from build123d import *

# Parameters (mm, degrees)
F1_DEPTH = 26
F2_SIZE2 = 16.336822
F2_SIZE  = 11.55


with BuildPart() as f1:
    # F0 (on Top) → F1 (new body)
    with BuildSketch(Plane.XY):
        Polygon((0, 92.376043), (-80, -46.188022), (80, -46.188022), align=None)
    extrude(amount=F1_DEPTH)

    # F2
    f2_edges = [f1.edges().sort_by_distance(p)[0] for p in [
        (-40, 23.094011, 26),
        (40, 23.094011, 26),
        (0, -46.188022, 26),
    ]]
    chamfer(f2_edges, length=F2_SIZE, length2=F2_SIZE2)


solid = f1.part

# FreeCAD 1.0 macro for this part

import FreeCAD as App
import Part
import Sketcher
from FreeCAD import Vector
Q = App.Units.Quantity


def edges_at(feature, points):
    """Names of the edges that pass closest to the given points."""
    edges = feature.Shape.Edges
    near = lambda p: min(range(len(edges)), key=lambda i: edges[i].distToShape(Part.Vertex(*p))[0])
    return sorted({f"Edge{near(p) + 1}" for p in points})

doc = App.newDocument("Part")
body = doc.addObject("PartDesign::Body", "Body")

# Sketch on XY plane
sketch1 = body.newObject("Sketcher::SketchObject", "Sketch")
sketch1.AttachmentSupport = (doc.getObject("XY_Plane"), [""])
sketch1.MapMode = "FlatFace"
sketch1.addGeometry(Part.LineSegment(Vector(0, 92, 0), Vector(-80, -46, 0)), False)
sketch1.addGeometry(Part.LineSegment(Vector(-80, -46, 0), Vector(80, -46, 0)), False)
sketch1.addGeometry(Part.LineSegment(Vector(80, -46, 0), Vector(0, 92, 0)), False)
sketch1.addConstraint(Sketcher.Constraint("Coincident", 0, 2, 1, 1))
sketch1.addConstraint(Sketcher.Constraint("Coincident", 1, 2, 2, 1))
sketch1.addConstraint(Sketcher.Constraint("Coincident", 2, 2, 0, 1))
sketch1.addConstraint(Sketcher.Constraint("Horizontal", 1))
sketch1.addConstraint(Sketcher.Constraint("PointOnObject", 2, 2, -2))
sketch1.addConstraint(Sketcher.Constraint("Equal", 0, 2))
sketch1.addConstraint(Sketcher.Constraint("DistanceX", 1, 1, 1, 2, 160.0))
sketch1.addConstraint(Sketcher.Constraint("Angle", 0, Q("-120 deg")))
sketch1.addConstraint(Sketcher.Constraint("DistanceY", 0, 2, -1, 1, 46.188022))
pad1 = body.newObject("PartDesign::Pad", "Pad")
pad1.Profile = sketch1
pad1.Length = 26
doc.recompute()

chamfer = body.newObject("PartDesign::Chamfer", "Chamfer")
chamfer.Base = (pad1, edges_at(pad1, [(-40, 23.094, 26), (40, 23.094, 26), (0, -46.188, 26)]))
chamfer.ChamferType = "Two distances"
chamfer.Size = 11.55
chamfer.Size2 = 16.336822

doc.recompute()
